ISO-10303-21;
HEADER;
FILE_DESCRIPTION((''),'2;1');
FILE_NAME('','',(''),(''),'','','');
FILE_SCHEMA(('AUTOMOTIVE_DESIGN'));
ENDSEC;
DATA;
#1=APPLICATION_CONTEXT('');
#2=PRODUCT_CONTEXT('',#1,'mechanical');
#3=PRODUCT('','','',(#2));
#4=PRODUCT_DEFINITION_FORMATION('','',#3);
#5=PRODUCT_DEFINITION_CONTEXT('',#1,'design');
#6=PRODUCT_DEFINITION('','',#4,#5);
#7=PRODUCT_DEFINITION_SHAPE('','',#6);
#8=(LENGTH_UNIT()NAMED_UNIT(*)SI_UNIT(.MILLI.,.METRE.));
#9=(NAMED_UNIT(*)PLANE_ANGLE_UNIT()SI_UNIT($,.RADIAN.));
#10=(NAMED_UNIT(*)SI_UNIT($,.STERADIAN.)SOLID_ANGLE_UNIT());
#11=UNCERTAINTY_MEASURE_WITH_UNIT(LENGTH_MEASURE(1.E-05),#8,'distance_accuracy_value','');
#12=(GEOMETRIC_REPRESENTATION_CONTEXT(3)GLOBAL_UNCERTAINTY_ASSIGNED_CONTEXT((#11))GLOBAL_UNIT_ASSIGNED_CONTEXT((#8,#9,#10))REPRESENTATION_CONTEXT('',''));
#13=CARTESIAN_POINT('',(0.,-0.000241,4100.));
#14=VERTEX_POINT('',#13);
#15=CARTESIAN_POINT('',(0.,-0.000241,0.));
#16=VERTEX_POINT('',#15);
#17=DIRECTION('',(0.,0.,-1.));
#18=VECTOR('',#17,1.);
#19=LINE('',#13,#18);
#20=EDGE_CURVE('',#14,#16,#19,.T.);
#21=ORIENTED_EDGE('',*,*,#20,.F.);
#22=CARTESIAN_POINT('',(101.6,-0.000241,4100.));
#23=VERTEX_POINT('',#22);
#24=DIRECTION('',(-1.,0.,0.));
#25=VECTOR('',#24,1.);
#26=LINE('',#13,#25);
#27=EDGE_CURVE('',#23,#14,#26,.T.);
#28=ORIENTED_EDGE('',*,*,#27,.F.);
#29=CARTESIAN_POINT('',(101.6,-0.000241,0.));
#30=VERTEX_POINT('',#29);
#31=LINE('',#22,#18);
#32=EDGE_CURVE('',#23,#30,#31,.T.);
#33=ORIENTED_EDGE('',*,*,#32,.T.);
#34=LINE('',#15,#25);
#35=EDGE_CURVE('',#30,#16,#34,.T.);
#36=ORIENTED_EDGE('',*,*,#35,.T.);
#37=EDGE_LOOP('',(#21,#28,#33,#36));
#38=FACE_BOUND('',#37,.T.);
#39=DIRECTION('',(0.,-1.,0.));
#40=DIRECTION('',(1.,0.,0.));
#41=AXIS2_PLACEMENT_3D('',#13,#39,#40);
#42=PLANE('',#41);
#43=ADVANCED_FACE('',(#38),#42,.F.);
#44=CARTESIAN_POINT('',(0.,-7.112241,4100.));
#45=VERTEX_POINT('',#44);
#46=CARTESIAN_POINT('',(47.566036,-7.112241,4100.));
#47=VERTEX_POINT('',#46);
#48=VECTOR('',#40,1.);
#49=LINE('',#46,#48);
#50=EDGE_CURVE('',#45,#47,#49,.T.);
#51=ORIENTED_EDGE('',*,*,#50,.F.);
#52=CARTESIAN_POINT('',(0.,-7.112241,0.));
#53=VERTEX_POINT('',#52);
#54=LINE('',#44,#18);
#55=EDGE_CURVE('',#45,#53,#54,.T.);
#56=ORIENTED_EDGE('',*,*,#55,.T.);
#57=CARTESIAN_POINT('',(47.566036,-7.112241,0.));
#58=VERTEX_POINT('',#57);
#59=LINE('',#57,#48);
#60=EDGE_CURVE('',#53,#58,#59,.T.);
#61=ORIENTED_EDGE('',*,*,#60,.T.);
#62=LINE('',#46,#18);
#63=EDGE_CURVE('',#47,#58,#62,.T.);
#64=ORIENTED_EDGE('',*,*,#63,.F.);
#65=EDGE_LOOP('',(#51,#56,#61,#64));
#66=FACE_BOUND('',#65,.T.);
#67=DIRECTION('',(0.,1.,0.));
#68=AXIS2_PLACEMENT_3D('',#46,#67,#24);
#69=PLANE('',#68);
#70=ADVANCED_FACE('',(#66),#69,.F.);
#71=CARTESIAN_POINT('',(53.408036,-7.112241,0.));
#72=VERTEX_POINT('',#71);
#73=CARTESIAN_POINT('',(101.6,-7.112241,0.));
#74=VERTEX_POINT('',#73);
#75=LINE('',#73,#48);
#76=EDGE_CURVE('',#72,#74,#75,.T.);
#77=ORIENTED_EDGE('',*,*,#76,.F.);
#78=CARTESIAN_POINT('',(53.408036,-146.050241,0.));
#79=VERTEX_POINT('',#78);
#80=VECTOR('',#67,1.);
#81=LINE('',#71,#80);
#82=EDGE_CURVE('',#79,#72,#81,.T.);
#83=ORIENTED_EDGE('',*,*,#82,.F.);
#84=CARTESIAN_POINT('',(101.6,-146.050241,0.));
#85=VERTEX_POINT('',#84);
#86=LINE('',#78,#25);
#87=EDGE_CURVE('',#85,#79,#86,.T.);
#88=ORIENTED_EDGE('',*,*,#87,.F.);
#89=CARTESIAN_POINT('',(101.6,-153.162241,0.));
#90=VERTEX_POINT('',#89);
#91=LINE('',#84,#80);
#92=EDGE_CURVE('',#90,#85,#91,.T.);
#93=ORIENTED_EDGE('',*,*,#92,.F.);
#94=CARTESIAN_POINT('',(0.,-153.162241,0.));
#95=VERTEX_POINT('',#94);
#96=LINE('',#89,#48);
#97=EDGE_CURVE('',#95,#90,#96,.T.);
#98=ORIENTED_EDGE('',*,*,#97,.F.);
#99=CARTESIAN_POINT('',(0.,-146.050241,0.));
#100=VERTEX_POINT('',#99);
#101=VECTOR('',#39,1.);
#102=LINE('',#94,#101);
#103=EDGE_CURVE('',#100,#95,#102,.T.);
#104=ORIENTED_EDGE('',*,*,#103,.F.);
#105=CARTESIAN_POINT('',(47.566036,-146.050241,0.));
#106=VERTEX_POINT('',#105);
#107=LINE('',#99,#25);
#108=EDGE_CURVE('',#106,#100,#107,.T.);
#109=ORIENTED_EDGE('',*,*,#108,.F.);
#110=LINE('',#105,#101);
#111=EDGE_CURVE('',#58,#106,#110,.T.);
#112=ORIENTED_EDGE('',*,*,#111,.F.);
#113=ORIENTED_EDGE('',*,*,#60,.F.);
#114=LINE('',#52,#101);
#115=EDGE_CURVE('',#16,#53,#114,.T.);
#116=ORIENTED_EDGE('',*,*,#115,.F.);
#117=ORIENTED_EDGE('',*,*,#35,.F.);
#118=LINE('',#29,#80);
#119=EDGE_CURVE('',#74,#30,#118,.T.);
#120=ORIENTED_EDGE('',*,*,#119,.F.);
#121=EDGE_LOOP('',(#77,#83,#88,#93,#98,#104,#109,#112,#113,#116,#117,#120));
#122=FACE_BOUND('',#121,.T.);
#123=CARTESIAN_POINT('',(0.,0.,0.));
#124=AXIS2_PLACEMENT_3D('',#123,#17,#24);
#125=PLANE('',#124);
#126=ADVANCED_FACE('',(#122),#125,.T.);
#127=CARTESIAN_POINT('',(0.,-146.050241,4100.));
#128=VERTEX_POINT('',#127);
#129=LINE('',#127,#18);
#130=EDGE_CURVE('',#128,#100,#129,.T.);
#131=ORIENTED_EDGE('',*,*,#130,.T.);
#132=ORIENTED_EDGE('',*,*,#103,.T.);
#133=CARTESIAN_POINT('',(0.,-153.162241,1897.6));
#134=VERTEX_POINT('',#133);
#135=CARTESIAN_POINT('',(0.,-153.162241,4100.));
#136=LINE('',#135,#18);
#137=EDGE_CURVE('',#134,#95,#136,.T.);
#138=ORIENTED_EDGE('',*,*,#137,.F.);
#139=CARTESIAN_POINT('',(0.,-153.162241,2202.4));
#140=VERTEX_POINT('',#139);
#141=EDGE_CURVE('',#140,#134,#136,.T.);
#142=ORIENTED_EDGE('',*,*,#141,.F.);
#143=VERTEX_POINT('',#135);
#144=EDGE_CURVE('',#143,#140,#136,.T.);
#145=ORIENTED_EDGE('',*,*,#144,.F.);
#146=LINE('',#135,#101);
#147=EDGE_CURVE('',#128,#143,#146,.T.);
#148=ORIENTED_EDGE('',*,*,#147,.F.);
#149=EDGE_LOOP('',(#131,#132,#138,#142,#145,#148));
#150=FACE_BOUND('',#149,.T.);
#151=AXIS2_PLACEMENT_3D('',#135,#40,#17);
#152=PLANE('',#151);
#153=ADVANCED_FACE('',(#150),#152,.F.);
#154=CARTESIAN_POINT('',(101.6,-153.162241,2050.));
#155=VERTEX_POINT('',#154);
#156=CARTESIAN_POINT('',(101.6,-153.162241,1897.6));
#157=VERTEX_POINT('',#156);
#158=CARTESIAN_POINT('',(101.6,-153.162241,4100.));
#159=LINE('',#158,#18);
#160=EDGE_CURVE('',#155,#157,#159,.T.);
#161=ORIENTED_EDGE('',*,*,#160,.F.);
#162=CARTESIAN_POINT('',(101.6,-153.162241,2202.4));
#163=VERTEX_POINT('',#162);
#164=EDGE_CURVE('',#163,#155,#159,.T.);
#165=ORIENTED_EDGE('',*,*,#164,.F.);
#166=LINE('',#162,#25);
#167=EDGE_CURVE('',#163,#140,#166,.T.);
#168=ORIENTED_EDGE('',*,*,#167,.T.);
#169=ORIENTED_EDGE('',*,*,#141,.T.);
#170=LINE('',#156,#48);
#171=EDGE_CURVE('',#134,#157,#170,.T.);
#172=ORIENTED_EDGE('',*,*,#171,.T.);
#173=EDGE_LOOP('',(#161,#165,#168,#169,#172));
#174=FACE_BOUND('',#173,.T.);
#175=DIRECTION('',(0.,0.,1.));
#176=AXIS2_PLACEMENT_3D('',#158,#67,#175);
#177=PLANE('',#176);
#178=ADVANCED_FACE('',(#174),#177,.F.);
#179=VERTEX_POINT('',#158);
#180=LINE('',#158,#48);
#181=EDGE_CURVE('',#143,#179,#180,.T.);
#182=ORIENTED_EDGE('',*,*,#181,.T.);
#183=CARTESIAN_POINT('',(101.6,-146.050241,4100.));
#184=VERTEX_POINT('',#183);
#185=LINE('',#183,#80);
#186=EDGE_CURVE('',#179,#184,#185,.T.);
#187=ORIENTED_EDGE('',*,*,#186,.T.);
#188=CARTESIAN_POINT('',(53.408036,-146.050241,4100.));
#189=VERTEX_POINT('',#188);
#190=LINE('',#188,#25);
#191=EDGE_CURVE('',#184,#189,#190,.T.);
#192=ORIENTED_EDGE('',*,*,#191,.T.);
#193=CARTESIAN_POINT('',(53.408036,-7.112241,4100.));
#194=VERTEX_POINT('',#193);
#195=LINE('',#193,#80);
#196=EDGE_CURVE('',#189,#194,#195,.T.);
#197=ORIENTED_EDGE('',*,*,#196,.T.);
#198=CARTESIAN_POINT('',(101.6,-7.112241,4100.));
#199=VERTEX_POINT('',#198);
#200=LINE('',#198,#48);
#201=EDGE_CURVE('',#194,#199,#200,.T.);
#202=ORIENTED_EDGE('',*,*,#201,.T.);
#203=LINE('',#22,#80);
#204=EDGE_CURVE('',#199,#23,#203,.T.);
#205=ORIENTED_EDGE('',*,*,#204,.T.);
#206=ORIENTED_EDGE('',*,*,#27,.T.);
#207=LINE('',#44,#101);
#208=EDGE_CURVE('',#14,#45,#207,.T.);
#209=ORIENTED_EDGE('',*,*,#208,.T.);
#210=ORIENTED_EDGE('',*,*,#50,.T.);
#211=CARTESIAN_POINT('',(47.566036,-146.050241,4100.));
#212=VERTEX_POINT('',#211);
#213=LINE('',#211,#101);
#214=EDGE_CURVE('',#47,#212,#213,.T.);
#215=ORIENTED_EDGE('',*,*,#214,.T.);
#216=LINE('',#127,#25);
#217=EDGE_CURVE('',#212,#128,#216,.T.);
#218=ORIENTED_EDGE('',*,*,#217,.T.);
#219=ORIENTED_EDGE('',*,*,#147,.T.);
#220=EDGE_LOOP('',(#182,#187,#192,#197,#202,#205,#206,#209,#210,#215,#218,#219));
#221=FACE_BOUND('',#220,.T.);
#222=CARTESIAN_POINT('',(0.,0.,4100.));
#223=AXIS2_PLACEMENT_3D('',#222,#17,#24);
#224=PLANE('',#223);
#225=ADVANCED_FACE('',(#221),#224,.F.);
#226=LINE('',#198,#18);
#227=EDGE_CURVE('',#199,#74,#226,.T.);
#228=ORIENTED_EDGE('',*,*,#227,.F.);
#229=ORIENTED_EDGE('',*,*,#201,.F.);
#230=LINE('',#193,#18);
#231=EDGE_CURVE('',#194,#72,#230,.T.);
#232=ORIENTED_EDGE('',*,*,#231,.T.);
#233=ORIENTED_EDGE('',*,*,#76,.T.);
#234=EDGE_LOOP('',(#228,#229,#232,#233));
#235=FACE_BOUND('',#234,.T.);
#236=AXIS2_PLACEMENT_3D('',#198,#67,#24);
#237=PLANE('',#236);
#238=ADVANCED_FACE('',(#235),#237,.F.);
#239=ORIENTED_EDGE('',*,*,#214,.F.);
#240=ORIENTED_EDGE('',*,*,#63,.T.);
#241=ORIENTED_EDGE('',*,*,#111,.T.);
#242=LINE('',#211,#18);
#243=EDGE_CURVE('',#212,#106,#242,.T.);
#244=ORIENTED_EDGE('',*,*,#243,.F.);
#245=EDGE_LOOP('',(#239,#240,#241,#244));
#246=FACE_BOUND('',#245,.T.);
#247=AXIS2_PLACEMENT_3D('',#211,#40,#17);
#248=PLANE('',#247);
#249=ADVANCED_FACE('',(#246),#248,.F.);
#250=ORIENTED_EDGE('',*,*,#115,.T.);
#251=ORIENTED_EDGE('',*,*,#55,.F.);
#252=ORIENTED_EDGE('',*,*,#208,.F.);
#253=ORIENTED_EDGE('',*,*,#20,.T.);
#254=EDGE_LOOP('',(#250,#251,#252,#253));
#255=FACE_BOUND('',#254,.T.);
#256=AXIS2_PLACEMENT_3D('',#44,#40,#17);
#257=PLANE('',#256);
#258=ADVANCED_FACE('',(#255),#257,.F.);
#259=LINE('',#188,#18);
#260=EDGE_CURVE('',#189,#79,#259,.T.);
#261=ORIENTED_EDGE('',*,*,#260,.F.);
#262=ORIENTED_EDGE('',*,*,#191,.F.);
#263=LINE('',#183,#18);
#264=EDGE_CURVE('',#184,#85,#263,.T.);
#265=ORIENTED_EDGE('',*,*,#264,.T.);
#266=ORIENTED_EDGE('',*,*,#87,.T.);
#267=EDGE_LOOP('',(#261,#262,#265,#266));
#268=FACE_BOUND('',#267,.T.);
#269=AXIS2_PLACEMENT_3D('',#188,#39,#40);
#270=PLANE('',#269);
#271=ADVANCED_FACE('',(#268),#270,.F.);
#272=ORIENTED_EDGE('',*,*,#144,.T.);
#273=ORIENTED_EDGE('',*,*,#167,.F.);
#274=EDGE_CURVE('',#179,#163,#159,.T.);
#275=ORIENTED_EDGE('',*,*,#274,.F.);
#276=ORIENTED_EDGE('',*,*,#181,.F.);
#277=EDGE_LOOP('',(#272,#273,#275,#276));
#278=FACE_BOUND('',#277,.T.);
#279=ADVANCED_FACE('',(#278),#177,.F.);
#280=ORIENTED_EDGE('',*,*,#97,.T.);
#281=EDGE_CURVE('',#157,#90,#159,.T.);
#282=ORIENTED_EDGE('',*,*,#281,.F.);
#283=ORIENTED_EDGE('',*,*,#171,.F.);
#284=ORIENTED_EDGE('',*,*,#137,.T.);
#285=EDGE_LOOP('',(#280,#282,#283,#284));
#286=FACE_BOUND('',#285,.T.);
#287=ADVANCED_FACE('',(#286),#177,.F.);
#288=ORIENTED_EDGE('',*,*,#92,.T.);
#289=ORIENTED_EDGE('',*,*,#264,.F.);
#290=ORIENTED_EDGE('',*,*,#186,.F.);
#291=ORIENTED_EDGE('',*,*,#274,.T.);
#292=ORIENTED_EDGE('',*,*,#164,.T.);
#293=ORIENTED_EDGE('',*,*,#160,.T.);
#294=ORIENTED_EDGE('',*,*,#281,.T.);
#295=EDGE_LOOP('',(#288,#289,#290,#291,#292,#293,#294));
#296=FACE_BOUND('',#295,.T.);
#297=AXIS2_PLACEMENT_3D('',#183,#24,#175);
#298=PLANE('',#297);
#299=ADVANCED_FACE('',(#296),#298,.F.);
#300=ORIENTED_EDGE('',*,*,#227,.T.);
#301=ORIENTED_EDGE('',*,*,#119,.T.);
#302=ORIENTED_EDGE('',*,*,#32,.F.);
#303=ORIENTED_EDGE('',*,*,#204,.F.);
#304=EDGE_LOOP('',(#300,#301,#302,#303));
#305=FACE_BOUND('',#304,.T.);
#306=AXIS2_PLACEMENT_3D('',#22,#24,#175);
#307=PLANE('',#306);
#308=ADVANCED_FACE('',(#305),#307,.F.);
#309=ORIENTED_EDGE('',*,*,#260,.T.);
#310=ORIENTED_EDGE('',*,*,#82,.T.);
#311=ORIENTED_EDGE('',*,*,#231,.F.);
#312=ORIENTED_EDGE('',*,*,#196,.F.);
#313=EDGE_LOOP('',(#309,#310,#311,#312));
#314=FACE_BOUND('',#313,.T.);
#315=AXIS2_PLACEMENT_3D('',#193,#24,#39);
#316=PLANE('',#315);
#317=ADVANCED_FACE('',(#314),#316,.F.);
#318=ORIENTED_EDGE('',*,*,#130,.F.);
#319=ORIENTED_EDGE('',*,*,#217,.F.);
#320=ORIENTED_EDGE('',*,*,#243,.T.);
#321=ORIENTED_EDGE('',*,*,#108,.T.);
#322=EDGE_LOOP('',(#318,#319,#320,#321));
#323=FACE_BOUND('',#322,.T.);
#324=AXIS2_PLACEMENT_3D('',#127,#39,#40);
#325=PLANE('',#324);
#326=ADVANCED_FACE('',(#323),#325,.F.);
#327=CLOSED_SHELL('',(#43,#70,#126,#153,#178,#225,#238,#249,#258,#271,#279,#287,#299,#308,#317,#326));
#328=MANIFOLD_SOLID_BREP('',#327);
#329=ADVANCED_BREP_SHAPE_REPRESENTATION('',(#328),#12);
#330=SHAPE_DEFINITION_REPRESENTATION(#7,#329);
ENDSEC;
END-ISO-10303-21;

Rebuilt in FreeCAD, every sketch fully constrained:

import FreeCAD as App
import Part
import Sketcher

V = App.Vector
Q = App.Units.Quantity


def add_polygon(sketch, points):
    """Adds a closed chain of lines whose ends are joined by coincident constraints."""
    first, n = sketch.GeometryCount, len(points)
    for a, b in zip(points, points[1:] + points[:1]):
        sketch.addGeometry(Part.LineSegment(App.Vector(*a, 0), App.Vector(*b, 0)), False)
    for i in range(n):
        sketch.addConstraint(Sketcher.Constraint("Coincident", first + i, 2, first + (i + 1) % n, 1))

doc = App.newDocument("Part")
body = doc.addObject("PartDesign::Body", "Body")

sketch1 = body.newObject("Sketcher::SketchObject", "Sketch")
sketch1.AttachmentSupport = (doc.getObject("XY_Plane"), [""])
sketch1.MapMode = "FlatFace"
add_polygon(sketch1, [(102, 0), (0, 0), (0, -7), (48, -7), (48, -146), (0, -146), (0, -153), (102, -153), (102, -146), (53, -146), (53, -7), (102, -7)])
sketch1.addConstraint(Sketcher.Constraint("Horizontal", 0))
sketch1.addConstraint(Sketcher.Constraint("Vertical", 1))
sketch1.addConstraint(Sketcher.Constraint("Horizontal", 2))
sketch1.addConstraint(Sketcher.Constraint("Vertical", 3))
sketch1.addConstraint(Sketcher.Constraint("Horizontal", 4))
sketch1.addConstraint(Sketcher.Constraint("Vertical", 5))
sketch1.addConstraint(Sketcher.Constraint("Horizontal", 6))
sketch1.addConstraint(Sketcher.Constraint("Vertical", 7))
sketch1.addConstraint(Sketcher.Constraint("Horizontal", 8))
sketch1.addConstraint(Sketcher.Constraint("Vertical", 9))
sketch1.addConstraint(Sketcher.Constraint("Horizontal", 10))
sketch1.addConstraint(Sketcher.Constraint("Vertical", 11))
sketch1.addConstraint(Sketcher.Constraint("PointOnObject", 0, 2, -2))
sketch1.addConstraint(Sketcher.Constraint("PointOnObject", 4, 2, -2))
sketch1.addConstraint(Sketcher.Constraint("Horizontal", 4, 2, 7, 2))
sketch1.addConstraint(Sketcher.Constraint("Horizontal", 2, 2, 9, 2))
sketch1.addConstraint(Sketcher.Constraint("Vertical", 7, 2, 10, 2))
sketch1.addConstraint(Sketcher.Constraint("Equal", 1, 5))
sketch1.addConstraint(Sketcher.Constraint("DistanceX", 0, 2, 0, 1, Q("4 in")))
sketch1.addConstraint(Sketcher.Constraint("DistanceY", 1, 2, 1, 1, Q("0.28 in")))
sketch1.addConstraint(Sketcher.Constraint("DistanceY", 3, 2, 3, 1, Q("5.47 in")))
sketch1.addConstraint(Sketcher.Constraint("DistanceX", 3, 2, 8, 2, Q("0.23 in")))
sketch1.addConstraint(Sketcher.Constraint("DistanceX", 2, 1, 2, 2, Q("47.566036 mm")))
sketch1.addConstraint(Sketcher.Constraint("DistanceY", 0, 2, -1, 1, Q("0.000241 mm")))
pad1 = body.newObject("PartDesign::Pad", "Pad")
pad1.Profile = sketch1
pad1.Length = 4100

doc.recompute()
